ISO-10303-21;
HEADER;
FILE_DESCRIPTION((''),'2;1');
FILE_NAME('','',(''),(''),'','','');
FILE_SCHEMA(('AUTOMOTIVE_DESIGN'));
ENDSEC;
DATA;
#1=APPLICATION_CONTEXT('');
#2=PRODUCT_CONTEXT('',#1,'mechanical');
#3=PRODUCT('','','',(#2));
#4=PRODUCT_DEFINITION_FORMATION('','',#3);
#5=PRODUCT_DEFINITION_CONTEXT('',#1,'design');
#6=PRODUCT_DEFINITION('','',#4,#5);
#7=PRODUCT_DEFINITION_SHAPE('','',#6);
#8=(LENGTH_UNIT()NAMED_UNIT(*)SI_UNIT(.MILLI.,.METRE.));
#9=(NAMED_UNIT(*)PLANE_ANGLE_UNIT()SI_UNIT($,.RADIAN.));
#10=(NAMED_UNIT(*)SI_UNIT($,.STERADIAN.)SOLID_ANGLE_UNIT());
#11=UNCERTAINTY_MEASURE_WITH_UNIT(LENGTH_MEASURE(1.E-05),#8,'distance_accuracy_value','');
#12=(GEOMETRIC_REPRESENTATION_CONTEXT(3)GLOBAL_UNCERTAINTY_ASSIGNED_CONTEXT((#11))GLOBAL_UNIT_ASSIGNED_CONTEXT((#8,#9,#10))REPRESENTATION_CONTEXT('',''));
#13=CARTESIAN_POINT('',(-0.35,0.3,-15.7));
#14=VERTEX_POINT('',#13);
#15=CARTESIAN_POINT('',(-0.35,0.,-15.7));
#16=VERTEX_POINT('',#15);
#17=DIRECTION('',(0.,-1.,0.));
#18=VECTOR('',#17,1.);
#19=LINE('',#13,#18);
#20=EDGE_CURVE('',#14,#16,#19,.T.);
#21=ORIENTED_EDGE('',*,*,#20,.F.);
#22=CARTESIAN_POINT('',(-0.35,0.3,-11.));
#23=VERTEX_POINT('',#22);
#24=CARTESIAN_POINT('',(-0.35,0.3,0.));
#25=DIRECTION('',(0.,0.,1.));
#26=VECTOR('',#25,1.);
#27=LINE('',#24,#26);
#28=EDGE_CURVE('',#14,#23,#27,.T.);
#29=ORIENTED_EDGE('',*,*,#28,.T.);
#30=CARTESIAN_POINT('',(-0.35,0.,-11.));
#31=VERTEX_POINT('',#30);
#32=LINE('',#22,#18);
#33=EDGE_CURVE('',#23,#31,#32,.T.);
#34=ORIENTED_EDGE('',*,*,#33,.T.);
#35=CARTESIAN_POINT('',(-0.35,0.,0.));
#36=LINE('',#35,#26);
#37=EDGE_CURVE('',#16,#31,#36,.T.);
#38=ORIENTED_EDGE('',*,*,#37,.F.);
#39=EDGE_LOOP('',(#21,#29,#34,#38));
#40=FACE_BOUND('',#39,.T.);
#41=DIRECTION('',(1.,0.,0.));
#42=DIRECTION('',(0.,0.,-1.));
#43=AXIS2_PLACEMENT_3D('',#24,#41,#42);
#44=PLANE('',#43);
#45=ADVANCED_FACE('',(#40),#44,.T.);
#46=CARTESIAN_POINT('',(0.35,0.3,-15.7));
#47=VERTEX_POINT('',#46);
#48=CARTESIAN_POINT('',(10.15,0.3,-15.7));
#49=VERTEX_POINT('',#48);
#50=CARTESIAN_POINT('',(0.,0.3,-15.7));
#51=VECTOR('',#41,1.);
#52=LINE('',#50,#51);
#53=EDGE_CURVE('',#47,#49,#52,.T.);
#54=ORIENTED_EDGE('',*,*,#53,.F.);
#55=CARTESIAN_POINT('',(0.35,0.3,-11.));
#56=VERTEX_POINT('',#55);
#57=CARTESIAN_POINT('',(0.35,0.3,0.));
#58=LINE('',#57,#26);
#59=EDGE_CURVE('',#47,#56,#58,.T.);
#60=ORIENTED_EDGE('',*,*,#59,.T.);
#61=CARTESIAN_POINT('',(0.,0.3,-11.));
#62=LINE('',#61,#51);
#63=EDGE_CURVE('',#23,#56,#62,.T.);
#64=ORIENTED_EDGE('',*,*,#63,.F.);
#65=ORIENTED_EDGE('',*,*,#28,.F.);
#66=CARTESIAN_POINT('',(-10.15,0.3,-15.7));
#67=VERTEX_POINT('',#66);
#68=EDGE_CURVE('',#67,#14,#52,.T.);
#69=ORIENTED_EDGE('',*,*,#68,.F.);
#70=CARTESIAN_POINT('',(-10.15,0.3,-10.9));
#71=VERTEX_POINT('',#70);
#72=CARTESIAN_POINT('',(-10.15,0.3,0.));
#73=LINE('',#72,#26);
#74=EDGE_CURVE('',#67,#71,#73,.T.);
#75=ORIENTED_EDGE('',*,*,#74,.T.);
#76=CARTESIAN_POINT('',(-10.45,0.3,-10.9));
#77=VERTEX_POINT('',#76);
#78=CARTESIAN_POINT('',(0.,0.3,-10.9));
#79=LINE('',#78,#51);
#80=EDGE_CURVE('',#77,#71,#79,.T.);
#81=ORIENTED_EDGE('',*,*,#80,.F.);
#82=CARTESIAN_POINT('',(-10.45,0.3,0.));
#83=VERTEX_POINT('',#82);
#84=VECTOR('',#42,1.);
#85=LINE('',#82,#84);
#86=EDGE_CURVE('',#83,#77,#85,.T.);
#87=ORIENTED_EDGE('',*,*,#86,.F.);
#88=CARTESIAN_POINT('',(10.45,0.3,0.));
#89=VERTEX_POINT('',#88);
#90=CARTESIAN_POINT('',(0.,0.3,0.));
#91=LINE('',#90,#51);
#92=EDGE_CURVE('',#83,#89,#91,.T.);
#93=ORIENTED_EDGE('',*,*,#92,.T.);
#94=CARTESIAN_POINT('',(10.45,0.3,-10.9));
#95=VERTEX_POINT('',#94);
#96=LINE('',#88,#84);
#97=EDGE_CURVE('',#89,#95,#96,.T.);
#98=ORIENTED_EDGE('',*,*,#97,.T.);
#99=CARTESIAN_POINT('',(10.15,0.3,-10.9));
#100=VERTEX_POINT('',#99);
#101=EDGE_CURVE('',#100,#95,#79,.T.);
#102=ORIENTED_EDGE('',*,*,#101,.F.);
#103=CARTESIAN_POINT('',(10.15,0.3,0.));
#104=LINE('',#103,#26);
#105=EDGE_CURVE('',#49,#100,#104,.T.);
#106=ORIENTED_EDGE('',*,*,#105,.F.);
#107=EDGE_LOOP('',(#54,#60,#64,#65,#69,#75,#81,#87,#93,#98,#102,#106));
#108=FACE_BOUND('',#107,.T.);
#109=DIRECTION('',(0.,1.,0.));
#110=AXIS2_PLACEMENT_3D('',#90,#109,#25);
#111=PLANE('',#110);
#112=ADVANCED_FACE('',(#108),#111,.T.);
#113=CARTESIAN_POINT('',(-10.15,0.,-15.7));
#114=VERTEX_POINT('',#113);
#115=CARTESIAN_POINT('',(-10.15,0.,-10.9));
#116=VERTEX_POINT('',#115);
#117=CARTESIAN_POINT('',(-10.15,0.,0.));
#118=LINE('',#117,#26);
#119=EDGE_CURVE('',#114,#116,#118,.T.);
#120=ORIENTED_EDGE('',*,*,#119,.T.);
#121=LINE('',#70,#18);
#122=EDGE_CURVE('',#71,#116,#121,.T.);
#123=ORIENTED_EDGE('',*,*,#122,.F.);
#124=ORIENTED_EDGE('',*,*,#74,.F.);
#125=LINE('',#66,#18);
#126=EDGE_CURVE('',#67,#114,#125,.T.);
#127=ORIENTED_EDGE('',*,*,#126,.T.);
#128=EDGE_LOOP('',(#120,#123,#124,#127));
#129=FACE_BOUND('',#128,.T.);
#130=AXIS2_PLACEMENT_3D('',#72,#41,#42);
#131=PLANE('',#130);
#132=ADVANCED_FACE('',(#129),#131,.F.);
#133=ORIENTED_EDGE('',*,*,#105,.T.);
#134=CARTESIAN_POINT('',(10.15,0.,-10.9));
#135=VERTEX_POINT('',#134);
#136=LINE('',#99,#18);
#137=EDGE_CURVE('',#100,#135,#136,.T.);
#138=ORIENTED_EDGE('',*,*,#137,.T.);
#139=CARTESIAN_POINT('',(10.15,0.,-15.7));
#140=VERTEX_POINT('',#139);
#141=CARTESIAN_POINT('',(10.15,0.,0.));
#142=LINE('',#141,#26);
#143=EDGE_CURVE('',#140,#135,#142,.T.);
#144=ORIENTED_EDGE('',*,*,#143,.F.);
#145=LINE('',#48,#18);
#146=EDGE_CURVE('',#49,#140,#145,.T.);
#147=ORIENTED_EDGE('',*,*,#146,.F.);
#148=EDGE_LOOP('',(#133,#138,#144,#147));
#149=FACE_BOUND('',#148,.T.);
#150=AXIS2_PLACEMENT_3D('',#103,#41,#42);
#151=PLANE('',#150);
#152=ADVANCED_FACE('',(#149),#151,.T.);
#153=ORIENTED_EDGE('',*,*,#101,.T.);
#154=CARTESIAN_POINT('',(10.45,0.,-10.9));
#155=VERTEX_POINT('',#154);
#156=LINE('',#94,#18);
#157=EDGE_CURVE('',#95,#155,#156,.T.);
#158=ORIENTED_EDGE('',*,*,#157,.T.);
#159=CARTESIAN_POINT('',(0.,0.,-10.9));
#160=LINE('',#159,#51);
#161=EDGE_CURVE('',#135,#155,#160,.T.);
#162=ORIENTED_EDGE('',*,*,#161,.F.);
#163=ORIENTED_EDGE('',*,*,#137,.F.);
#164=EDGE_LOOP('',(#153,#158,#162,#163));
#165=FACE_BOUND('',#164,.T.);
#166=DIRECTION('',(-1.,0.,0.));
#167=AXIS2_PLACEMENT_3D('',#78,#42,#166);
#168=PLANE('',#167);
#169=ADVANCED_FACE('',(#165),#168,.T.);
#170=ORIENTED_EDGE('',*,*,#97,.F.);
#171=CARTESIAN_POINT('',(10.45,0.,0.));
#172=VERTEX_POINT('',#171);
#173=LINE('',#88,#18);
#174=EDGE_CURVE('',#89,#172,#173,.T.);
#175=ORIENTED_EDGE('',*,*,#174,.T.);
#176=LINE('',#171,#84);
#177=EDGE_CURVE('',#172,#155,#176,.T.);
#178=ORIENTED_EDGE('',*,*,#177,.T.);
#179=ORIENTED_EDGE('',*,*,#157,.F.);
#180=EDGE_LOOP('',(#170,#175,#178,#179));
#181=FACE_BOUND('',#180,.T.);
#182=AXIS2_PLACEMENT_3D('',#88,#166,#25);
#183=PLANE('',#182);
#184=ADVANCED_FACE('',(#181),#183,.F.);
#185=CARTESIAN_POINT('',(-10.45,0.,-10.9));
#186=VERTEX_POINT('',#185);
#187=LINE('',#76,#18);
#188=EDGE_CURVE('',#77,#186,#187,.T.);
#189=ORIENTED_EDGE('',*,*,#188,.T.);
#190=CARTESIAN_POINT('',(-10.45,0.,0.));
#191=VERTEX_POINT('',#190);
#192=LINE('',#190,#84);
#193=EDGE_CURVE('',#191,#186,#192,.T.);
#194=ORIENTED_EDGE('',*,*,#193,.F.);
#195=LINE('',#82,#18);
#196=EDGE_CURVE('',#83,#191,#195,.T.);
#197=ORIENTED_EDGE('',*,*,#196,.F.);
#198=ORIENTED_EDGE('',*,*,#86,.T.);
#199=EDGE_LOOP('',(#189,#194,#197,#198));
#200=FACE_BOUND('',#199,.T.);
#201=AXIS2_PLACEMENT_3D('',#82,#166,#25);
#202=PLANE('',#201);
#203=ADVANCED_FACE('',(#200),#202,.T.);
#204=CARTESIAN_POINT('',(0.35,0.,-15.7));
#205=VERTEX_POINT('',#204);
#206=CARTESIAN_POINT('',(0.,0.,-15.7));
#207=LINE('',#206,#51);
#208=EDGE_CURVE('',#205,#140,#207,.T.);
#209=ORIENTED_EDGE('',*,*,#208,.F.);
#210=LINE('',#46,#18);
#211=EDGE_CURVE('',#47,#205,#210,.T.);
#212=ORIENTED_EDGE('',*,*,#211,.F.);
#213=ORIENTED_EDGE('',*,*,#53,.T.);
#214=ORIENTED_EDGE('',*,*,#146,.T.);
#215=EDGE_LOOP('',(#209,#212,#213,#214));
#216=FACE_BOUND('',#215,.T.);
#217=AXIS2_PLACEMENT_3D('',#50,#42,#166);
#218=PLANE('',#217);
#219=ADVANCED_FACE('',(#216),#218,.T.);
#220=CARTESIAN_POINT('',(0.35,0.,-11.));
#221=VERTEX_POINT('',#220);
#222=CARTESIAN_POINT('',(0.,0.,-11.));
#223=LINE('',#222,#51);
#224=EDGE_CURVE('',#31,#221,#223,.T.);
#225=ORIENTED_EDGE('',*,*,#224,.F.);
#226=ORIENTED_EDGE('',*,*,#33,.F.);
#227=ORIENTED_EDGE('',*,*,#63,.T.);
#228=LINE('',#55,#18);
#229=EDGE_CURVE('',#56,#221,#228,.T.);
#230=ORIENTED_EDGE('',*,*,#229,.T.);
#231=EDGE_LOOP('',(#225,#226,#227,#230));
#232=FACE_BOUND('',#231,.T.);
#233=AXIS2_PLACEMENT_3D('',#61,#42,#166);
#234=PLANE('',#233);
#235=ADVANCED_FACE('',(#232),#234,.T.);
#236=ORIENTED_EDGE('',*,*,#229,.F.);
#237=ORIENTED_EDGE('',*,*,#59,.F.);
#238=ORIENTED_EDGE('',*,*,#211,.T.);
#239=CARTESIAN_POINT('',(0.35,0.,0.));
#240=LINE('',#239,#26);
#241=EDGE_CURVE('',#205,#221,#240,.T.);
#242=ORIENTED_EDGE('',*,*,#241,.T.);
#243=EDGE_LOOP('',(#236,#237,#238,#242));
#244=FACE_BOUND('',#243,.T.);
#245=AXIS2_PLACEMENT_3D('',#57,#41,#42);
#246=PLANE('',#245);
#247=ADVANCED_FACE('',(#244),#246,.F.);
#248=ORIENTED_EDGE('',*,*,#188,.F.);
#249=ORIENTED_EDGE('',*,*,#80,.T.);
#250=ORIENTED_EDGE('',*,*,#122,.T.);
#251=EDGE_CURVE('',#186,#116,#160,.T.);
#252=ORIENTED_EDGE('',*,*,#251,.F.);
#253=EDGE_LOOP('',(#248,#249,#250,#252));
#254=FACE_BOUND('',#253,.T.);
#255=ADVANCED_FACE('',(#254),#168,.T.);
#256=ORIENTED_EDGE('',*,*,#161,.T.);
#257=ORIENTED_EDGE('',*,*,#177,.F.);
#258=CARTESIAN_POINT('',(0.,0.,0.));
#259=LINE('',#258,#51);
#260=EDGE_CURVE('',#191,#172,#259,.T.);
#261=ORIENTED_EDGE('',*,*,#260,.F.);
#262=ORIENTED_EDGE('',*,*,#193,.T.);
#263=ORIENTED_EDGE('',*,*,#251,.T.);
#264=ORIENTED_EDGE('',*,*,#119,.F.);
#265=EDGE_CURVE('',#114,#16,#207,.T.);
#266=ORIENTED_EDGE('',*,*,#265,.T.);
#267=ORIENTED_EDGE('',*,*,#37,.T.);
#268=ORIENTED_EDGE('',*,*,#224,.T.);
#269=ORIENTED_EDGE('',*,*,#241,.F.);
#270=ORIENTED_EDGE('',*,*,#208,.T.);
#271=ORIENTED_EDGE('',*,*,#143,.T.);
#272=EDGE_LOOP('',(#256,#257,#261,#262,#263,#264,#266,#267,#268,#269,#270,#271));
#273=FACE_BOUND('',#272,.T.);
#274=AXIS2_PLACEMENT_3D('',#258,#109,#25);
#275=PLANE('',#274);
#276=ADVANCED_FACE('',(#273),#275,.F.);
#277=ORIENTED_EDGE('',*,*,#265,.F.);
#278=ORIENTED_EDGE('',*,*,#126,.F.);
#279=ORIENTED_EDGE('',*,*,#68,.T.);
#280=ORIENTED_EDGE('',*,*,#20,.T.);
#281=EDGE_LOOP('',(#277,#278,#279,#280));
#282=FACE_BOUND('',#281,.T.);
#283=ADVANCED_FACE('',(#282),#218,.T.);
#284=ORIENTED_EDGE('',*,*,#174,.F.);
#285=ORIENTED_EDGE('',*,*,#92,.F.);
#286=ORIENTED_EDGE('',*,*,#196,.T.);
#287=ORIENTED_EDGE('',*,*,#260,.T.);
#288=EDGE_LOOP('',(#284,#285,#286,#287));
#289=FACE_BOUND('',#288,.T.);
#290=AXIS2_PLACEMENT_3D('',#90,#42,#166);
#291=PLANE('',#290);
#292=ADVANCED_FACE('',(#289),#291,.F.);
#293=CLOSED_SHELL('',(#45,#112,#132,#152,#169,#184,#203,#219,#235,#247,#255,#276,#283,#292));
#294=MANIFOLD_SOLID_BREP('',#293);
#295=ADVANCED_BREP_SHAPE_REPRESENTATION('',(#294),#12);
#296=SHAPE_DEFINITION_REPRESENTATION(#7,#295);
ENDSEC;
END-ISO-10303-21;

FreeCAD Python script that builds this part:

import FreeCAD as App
import Part
import Sketcher

doc = App.newDocument("Part")
params = doc.addObject("Spreadsheet::Sheet", "Params")
for row, (alias, value) in enumerate([
    ("sketch1_width", "0.3 mm"),
    ("sketch1_width2", "20.9 mm"),
    ("sketch1_width3", "9.8 mm"),
    ("sketch1_height", "4.8 mm"),
    ("sketch1_height2", "10.9 mm"),
    ("pad1_length", "0.3 mm"),
], start=1):
    params.set(f"A{row}", alias)
    params.set(f"B{row}", "=" + value)
    params.setAlias(f"B{row}", alias)

body = doc.addObject("PartDesign::Body", "Body")

# Sketch on XZ plane
sketch1 = body.newObject("Sketcher::SketchObject", "Sketch")
sketch1.AttachmentSupport = (doc.getObject("XZ_Plane"), [""])
sketch1.MapMode = "FlatFace"
sketch1.addGeometry([
    Part.LineSegment(App.Vector(-10.15, -15.7, 0), App.Vector(-10.15, -10.9, 0)),  # 0
    Part.LineSegment(App.Vector(-10.15, -10.9, 0), App.Vector(-10.45, -10.9, 0)),  # 1
    Part.LineSegment(App.Vector(-10.45, -10.9, 0), App.Vector(-10.45, 0, 0)),  # 2
    Part.LineSegment(App.Vector(-10.45, 0, 0), App.Vector(10.45, 0, 0)),  # 3
    Part.LineSegment(App.Vector(10.45, 0, 0), App.Vector(10.45, -10.9, 0)),  # 4
    Part.LineSegment(App.Vector(10.45, -10.9, 0), App.Vector(10.15, -10.9, 0)),  # 5
    Part.LineSegment(App.Vector(10.15, -10.9, 0), App.Vector(10.15, -15.7, 0)),  # 6
    Part.LineSegment(App.Vector(10.15, -15.7, 0), App.Vector(0.35, -15.7, 0)),  # 7
    Part.LineSegment(App.Vector(0.35, -15.7, 0), App.Vector(0.35, -11, 0)),  # 8
    Part.LineSegment(App.Vector(0.35, -11, 0), App.Vector(-0.35, -11, 0)),  # 9
    Part.LineSegment(App.Vector(-0.35, -11, 0), App.Vector(-0.35, -15.7, 0)),  # 10
    Part.LineSegment(App.Vector(-0.35, -15.7, 0), App.Vector(-10.15, -15.7, 0)),  # 11
], False)
sketch1.addConstraint([
    Sketcher.Constraint("Coincident", 0, 2, 1, 1),
    Sketcher.Constraint("Coincident", 1, 2, 2, 1),
    Sketcher.Constraint("Coincident", 2, 2, 3, 1),
    Sketcher.Constraint("Coincident", 3, 2, 4, 1),
    Sketcher.Constraint("Coincident", 4, 2, 5, 1),
    Sketcher.Constraint("Coincident", 5, 2, 6, 1),
    Sketcher.Constraint("Coincident", 6, 2, 7, 1),
    Sketcher.Constraint("Coincident", 7, 2, 8, 1),
    Sketcher.Constraint("Coincident", 8, 2, 9, 1),
    Sketcher.Constraint("Coincident", 9, 2, 10, 1),
    Sketcher.Constraint("Coincident", 10, 2, 11, 1),
    Sketcher.Constraint("Coincident", 11, 2, 0, 1),
    Sketcher.Constraint("Vertical", 0),
    Sketcher.Constraint("Horizontal", 1),
    Sketcher.Constraint("Vertical", 2),
    Sketcher.Constraint("Horizontal", 3),
    Sketcher.Constraint("Vertical", 4),
    Sketcher.Constraint("Horizontal", 5),
    Sketcher.Constraint("Vertical", 6),
    Sketcher.Constraint("Horizontal", 7),
    Sketcher.Constraint("Vertical", 8),
    Sketcher.Constraint("Horizontal", 9),
    Sketcher.Constraint("Vertical", 10),
    Sketcher.Constraint("Horizontal", 11),
    Sketcher.Constraint("Symmetric", 2, 2, 3, 2, -1, 1),
    Sketcher.Constraint("Symmetric", 0, 2, 5, 2, -2),
    Sketcher.Constraint("Symmetric", 7, 2, 10, 2, -2),
    Sketcher.Constraint("DistanceX", 1, 2, 1, 1, 0.3),
    Sketcher.Constraint("DistanceX", 3, 1, 3, 2, 20.9),
    Sketcher.Constraint("DistanceX", 7, 2, 7, 1, 9.8),
    Sketcher.Constraint("DistanceY", 0, 1, 0, 2, 4.8),
    Sketcher.Constraint("DistanceY", 2, 1, 2, 2, 10.9),
    Sketcher.Constraint("DistanceY", 8, 1, 8, 2, 4.7),
])
sketch1.setExpression("Constraints[27]", "Params.sketch1_width")
sketch1.setExpression("Constraints[28]", "Params.sketch1_width2")
sketch1.setExpression("Constraints[29]", "Params.sketch1_width3")
sketch1.setExpression("Constraints[30]", "Params.sketch1_height")
sketch1.setExpression("Constraints[31]", "Params.sketch1_height2")
pad1 = body.newObject("PartDesign::Pad", "Pad")
pad1.Profile = sketch1
pad1.setExpression("Length", "Params.pad1_length")
pad1.Reversed = True

doc.recompute()
